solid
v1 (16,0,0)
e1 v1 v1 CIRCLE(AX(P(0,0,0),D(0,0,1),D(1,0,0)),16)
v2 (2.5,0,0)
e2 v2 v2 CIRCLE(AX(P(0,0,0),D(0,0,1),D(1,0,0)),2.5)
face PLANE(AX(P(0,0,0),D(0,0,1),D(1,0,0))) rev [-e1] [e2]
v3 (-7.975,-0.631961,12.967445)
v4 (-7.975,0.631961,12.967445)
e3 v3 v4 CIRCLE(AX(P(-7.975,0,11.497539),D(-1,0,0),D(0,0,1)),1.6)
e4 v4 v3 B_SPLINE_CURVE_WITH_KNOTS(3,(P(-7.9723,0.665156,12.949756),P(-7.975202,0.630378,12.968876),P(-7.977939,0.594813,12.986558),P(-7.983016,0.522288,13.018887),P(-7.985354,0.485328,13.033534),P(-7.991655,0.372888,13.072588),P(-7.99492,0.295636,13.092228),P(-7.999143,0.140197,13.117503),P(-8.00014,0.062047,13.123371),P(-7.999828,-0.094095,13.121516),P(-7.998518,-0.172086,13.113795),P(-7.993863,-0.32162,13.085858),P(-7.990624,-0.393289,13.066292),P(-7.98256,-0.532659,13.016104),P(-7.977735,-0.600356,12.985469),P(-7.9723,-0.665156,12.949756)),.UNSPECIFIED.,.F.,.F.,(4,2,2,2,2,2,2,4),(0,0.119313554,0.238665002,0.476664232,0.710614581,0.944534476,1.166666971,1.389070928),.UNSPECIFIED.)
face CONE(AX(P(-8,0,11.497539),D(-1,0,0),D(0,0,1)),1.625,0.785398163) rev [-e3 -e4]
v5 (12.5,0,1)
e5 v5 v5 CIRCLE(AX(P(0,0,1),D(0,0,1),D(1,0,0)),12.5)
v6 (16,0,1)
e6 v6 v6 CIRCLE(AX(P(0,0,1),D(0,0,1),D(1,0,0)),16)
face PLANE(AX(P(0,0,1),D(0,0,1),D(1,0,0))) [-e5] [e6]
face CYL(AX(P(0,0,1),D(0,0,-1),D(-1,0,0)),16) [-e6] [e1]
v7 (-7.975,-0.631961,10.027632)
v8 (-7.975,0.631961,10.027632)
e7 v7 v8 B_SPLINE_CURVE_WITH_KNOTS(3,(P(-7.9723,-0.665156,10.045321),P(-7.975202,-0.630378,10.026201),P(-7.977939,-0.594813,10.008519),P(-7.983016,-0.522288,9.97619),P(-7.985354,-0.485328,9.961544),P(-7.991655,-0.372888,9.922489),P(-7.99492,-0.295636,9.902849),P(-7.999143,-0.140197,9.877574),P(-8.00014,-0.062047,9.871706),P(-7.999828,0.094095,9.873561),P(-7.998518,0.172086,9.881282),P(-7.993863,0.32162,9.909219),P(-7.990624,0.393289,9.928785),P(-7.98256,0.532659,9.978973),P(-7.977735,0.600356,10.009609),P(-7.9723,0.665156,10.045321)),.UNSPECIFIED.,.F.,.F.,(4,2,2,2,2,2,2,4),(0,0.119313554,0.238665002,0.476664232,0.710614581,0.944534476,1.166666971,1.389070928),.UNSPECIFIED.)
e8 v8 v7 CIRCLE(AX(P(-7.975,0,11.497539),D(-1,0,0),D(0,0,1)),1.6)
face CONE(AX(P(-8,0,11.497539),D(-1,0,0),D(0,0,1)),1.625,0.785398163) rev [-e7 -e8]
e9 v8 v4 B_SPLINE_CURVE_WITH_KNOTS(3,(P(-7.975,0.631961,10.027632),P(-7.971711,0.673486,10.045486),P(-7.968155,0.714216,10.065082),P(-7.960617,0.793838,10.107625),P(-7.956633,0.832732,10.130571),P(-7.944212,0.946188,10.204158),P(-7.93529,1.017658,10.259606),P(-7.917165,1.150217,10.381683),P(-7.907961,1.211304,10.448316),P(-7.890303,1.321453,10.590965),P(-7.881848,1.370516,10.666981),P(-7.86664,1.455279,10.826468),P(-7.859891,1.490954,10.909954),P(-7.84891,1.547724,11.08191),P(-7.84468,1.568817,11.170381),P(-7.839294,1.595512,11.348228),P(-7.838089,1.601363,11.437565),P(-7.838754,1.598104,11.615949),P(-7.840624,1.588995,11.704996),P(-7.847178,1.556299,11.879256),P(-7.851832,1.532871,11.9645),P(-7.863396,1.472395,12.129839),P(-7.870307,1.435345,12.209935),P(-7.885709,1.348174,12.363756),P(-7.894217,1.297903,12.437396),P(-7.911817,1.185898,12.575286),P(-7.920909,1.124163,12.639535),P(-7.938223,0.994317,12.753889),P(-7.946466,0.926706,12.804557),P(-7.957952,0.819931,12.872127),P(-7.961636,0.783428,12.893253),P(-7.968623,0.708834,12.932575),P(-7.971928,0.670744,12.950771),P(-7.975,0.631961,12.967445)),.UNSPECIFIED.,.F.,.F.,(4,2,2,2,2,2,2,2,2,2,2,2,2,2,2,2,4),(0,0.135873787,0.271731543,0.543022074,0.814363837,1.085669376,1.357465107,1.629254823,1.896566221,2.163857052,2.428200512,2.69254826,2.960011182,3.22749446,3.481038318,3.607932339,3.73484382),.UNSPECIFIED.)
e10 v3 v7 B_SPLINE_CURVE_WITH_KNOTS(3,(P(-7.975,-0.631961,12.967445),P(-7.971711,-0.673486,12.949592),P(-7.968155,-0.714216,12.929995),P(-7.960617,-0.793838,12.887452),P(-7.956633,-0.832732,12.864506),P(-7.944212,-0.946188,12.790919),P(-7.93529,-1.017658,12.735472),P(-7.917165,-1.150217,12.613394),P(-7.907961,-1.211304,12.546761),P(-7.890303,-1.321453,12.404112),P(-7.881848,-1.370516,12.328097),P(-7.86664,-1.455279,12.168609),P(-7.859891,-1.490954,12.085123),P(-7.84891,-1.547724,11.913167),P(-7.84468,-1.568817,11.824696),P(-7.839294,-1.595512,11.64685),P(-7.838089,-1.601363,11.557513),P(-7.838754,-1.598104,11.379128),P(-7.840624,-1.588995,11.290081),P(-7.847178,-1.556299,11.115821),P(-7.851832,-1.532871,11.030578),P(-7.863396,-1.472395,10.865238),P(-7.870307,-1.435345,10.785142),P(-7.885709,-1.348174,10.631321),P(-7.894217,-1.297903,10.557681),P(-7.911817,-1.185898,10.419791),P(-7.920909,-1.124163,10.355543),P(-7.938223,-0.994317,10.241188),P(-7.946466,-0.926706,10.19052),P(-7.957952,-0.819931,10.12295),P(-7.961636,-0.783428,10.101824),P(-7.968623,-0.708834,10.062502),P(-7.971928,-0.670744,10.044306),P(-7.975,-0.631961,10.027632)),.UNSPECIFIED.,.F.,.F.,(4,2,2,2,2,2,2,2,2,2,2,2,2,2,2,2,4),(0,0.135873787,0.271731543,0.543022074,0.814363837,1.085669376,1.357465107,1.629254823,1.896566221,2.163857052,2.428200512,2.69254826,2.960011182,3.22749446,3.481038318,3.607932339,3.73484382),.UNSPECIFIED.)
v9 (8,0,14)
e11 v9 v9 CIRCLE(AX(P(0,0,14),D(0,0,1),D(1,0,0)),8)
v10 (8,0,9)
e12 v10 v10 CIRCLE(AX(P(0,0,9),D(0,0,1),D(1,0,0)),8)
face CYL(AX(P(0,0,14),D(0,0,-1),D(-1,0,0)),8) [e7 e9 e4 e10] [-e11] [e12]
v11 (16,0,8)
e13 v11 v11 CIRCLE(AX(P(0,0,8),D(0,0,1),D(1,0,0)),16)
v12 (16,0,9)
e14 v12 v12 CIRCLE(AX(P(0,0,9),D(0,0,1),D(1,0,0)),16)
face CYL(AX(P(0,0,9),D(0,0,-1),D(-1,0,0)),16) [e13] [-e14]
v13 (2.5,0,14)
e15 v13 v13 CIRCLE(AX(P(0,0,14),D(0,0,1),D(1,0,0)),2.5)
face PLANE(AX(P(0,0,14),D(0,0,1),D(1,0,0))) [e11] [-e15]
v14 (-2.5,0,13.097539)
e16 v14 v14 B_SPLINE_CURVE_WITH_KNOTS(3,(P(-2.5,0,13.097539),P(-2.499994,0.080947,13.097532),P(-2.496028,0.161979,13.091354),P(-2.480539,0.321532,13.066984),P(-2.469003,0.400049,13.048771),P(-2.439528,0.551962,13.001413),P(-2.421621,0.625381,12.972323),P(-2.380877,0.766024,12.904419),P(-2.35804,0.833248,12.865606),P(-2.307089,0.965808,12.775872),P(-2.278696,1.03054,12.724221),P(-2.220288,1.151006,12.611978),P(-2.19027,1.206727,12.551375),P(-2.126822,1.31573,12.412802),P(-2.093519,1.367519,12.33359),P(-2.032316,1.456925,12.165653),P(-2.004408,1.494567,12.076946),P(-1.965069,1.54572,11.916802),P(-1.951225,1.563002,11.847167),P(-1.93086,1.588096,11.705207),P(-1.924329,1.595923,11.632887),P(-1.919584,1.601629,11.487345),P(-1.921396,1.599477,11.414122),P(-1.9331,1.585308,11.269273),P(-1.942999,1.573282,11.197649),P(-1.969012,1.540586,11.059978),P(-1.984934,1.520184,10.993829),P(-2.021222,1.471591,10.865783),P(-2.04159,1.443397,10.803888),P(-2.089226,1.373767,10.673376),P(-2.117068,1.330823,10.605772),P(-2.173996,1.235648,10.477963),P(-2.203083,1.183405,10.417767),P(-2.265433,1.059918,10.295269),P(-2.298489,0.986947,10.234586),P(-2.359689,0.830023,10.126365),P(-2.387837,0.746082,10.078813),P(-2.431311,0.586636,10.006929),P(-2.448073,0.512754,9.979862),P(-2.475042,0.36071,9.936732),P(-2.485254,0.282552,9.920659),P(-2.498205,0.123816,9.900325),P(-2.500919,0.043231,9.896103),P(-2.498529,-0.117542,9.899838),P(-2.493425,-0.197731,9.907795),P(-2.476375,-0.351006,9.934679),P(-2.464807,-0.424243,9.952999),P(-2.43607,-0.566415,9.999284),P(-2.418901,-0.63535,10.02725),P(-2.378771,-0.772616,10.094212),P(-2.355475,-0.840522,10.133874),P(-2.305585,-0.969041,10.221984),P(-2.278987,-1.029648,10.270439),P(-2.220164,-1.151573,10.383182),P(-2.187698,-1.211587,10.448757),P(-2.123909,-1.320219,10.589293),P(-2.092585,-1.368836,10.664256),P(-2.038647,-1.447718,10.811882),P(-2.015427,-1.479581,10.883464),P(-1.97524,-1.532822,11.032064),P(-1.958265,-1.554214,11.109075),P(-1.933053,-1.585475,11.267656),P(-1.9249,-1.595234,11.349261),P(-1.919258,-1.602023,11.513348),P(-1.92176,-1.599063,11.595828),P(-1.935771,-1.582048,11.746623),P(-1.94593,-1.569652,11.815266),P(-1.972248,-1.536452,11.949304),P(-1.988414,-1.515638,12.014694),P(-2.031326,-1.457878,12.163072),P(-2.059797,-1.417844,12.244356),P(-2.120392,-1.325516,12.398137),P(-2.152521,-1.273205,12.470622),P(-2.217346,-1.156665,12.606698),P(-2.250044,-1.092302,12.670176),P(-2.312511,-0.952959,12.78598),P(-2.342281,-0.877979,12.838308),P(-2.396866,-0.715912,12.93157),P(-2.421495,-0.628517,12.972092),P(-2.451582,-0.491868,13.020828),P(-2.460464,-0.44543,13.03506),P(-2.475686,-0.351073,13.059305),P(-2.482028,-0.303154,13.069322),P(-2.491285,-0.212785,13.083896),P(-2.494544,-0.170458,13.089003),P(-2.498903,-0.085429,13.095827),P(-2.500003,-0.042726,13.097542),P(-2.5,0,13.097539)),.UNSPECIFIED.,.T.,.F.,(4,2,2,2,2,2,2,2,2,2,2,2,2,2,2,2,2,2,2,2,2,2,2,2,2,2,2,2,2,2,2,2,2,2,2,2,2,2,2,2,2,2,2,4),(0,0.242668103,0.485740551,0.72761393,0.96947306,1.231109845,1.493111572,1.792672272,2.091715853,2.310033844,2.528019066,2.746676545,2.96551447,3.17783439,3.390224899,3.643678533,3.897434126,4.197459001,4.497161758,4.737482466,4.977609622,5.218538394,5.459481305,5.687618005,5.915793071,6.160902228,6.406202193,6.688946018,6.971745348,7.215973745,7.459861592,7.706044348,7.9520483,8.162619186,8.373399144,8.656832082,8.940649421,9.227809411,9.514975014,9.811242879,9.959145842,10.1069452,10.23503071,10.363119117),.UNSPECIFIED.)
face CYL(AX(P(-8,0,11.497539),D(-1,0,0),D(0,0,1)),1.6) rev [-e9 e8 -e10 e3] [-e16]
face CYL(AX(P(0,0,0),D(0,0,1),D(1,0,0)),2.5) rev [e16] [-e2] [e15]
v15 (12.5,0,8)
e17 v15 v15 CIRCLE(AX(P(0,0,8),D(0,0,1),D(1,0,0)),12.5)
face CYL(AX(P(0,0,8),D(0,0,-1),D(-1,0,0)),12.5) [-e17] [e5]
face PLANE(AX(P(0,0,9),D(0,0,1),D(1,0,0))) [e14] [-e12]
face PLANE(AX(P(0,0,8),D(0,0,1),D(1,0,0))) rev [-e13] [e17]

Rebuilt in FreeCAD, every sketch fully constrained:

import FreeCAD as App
import Part
import Sketcher
from FreeCAD import Vector
Q = App.Units.Quantity


def add_polygon(sketch, points):
    """Adds a closed chain of lines whose ends are joined by coincident constraints."""
    first, n = sketch.GeometryCount, len(points)
    for a, b in zip(points, points[1:] + points[:1]):
        sketch.addGeometry(Part.LineSegment(App.Vector(*a, 0), App.Vector(*b, 0)), False)
    for i in range(n):
        sketch.addConstraint(Sketcher.Constraint("Coincident", first + i, 2, first + (i + 1) % n, 1))

doc = App.newDocument("Part")
body = doc.addObject("PartDesign::Body", "Body")

sketch1 = doc.addObject("Sketcher::SketchObject", "Sketch")
body.addObject(sketch1)
sketch1.AttachmentSupport = (doc.XY_Plane, [""])
sketch1.MapMode = "FlatFace"
sketch1.addGeometry(Part.Circle(Vector(0, 0, 0), Vector(0, 0, 1), 16), False)
sketch1.addConstraint(Sketcher.Constraint("Coincident", 0, 3, -1, 1))
sketch1.addConstraint(Sketcher.Constraint("Diameter", 0, 32.0))
pad1 = doc.addObject("PartDesign::Pad", "Pad")
body.addObject(pad1)
pad1.Profile = sketch1
pad1.Length = 1

sketch2 = doc.addObject("Sketcher::SketchObject", "Sketch001")
body.addObject(sketch2)
sketch2.AttachmentSupport = (doc.XY_Plane, [""])
sketch2.MapMode = "FlatFace"
sketch2.AttachmentOffset = App.Placement(Vector(0, 0, 1), App.Rotation())
sketch2.addGeometry(Part.Circle(Vector(0, 0, 0), Vector(0, 0, 1), 12), False)
sketch2.addConstraint(Sketcher.Constraint("Coincident", 0, 3, -1, 1))
sketch2.addConstraint(Sketcher.Constraint("Diameter", 0, 25.0))
pad2 = doc.addObject("PartDesign::Pad", "Pad001")
body.addObject(pad2)
pad2.Profile = sketch2
pad2.Length = 7

sketch3 = doc.addObject("Sketcher::SketchObject", "Sketch002")
body.addObject(sketch3)
sketch3.AttachmentSupport = (doc.XY_Plane, [""])
sketch3.MapMode = "FlatFace"
sketch3.AttachmentOffset = App.Placement(Vector(0, 0, 8), App.Rotation())
sketch3.addGeometry(Part.Circle(Vector(0, 0, 0), Vector(0, 0, 1), 16), False)
sketch3.addConstraint(Sketcher.Constraint("Coincident", 0, 3, -1, 1))
sketch3.addConstraint(Sketcher.Constraint("Diameter", 0, 32.0))
pad3 = doc.addObject("PartDesign::Pad", "Pad002")
body.addObject(pad3)
pad3.Profile = sketch3
pad3.Length = 1

sketch4 = doc.addObject("Sketcher::SketchObject", "Sketch003")
body.addObject(sketch4)
sketch4.AttachmentSupport = (doc.XY_Plane, [""])
sketch4.MapMode = "FlatFace"
sketch4.AttachmentOffset = App.Placement(Vector(0, 0, 9), App.Rotation())
sketch4.addGeometry(Part.Circle(Vector(0, 0, 0), Vector(0, 0, 1), 8), False)
sketch4.addConstraint(Sketcher.Constraint("Coincident", 0, 3, -1, 1))
sketch4.addConstraint(Sketcher.Constraint("Diameter", 0, 16.0))
pad4 = doc.addObject("PartDesign::Pad", "Pad003")
body.addObject(pad4)
pad4.Profile = sketch4
pad4.Length = 5

sketch5 = doc.addObject("Sketcher::SketchObject", "Sketch004")
body.addObject(sketch5)
sketch5.AttachmentSupport = (doc.XY_Plane, [""])
sketch5.MapMode = "FlatFace"
sketch5.AttachmentOffset = App.Placement(Vector(0, 0, 14), App.Rotation())
sketch5.addGeometry(Part.Circle(Vector(0, 0, 0), Vector(0, 0, 1), 2.5), False)
sketch5.addConstraint(Sketcher.Constraint("Coincident", 0, 3, -1, 1))
sketch5.addConstraint(Sketcher.Constraint("Diameter", 0, 5.0))
pocket1 = doc.addObject("PartDesign::Pocket", "Pocket")
body.addObject(pocket1)
pocket1.Profile = sketch5
pocket1.Type = "ThroughAll"

sketch6 = doc.addObject("Sketcher::SketchObject", "Sketch005")
body.addObject(sketch6)
sketch6.AttachmentSupport = (doc.XZ_Plane, [""])
sketch6.MapMode = "FlatFace"
add_polygon(sketch6, [(0, 11.498), (-8, 11.498), (-8, 13.123), (-7.975, 13.098), (0, 13.098)])
sketch6.addGeometry(Part.LineSegment(Vector(-8, 11.498, 0), Vector(0, 11.498, 0)), True)
sketch6.addConstraint(Sketcher.Constraint("Horizontal", 0))
sketch6.addConstraint(Sketcher.Constraint("Vertical", 1))
sketch6.addConstraint(Sketcher.Constraint("Horizontal", 3))
sketch6.addConstraint(Sketcher.Constraint("Vertical", 4))
sketch6.addConstraint(Sketcher.Constraint("Horizontal", 5))
sketch6.addConstraint(Sketcher.Constraint("Coincident", 5, 1, 0, 2))
sketch6.addConstraint(Sketcher.Constraint("PointOnObject", 3, 2, -2))
sketch6.addConstraint(Sketcher.Constraint("PointOnObject", 5, 2, -2))
sketch6.addConstraint(Sketcher.Constraint("DistanceX", 0, 2, 0, 1, 8.0))
sketch6.addConstraint(Sketcher.Constraint("Angle", 2, Q("-45 deg")))
sketch6.addConstraint(Sketcher.Constraint("DistanceY", 4, 2, 4, 1, 1.6))
sketch6.addConstraint(Sketcher.Constraint("DistanceX", 3, 1, 3, 2, 7.975))
sketch6.addConstraint(Sketcher.Constraint("DistanceY", -1, 1, 0, 2, 11.497539))
groove = doc.addObject("PartDesign::Groove", "Groove")
body.addObject(groove)
groove.Profile = sketch6
groove.ReferenceAxis = (sketch6, ["Axis0"])
groove.Angle = 360

doc.recompute()
